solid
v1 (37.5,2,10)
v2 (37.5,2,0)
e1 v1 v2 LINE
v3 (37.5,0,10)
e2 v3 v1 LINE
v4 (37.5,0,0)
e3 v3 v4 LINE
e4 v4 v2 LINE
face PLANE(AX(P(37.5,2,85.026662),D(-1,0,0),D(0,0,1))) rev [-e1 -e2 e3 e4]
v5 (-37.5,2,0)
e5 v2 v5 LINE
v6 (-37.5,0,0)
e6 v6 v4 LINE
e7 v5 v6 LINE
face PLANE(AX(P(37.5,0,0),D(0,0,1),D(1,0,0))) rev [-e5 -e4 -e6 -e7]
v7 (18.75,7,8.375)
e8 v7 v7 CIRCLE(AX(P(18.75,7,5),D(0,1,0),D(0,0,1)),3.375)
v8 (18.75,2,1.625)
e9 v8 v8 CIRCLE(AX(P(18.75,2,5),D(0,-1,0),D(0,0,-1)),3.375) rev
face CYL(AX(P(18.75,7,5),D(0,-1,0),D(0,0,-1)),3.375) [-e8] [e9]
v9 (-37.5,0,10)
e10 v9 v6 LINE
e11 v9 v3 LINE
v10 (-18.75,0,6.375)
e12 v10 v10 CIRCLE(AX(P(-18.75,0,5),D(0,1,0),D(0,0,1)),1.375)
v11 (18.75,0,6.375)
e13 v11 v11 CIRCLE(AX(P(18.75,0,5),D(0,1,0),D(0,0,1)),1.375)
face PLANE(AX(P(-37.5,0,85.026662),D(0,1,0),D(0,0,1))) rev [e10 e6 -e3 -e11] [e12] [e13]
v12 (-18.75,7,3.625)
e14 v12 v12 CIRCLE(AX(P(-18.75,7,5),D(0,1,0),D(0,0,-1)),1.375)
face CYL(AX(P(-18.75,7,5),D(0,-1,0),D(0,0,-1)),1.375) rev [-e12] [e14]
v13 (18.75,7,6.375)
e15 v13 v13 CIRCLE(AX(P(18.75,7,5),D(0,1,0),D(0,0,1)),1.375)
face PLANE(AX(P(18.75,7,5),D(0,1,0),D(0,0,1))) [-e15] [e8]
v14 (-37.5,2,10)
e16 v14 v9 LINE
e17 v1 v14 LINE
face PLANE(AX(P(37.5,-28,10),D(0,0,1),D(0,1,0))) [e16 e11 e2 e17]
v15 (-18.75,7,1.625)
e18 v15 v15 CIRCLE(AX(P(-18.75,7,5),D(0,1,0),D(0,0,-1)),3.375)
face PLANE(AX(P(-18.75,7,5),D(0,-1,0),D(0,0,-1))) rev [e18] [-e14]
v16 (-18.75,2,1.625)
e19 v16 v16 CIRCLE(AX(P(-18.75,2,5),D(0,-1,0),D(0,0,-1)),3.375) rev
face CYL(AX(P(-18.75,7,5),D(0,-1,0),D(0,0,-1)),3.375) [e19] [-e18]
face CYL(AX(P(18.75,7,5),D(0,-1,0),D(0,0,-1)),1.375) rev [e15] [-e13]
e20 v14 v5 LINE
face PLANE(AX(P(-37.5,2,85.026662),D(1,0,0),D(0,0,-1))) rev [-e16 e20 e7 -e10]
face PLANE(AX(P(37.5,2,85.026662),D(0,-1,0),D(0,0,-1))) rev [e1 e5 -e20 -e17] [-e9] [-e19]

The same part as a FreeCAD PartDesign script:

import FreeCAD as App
import Part
import Sketcher

V = App.Vector

doc = App.newDocument("Part")
params = doc.addObject("Spreadsheet::Sheet", "Params")
for row, (alias, value) in enumerate([
    ("sketch1_width", "75 mm"),
    ("sketch1_height", "2 mm"),
    ("pad1_length", "10 mm"),
    ("sketch2_diameter", "6.75 mm"),
    ("sketch2_diameter2", "2.75 mm"),
    ("pad2_length", "5 mm"),
    ("sketch3_diameter", "2.75 mm"),
], start=1):
    params.set(f"A{row}", alias)
    params.set(f"B{row}", "=" + value)
    params.setAlias(f"B{row}", alias)

body = doc.addObject("PartDesign::Body", "Body")

# Sketch on XY plane
sketch1 = body.newObject("Sketcher::SketchObject", "Sketch")
sketch1.AttachmentSupport = (doc.getObject("XY_Plane"), [""])
sketch1.MapMode = "FlatFace"
sketch1.addGeometry([
    Part.LineSegment(V(-37.5, 2, 0), V(-37.5, 0, 0)),
    Part.LineSegment(V(-37.5, 0, 0), V(37.5, 0, 0)),
    Part.LineSegment(V(37.5, 0, 0), V(37.5, 2, 0)),
    Part.LineSegment(V(37.5, 2, 0), V(-37.5, 2, 0)),
], False)
sketch1.addConstraint([
    Sketcher.Constraint("Coincident", 0, 2, 1, 1),
    Sketcher.Constraint("Coincident", 1, 2, 2, 1),
    Sketcher.Constraint("Coincident", 2, 2, 3, 1),
    Sketcher.Constraint("Coincident", 3, 2, 0, 1),
    Sketcher.Constraint("Vertical", 0),
    Sketcher.Constraint("Horizontal", 1),
    Sketcher.Constraint("Vertical", 2),
    Sketcher.Constraint("Horizontal", 3),
    Sketcher.Constraint("Symmetric", 0, 2, 1, 2, -1, 1),
    Sketcher.Constraint("DistanceX", 1, 1, 1, 2, 75.0),
    Sketcher.Constraint("DistanceY", 0, 2, 0, 1, 2.0),
])
sketch1.setExpression("Constraints[9]", "Params.sketch1_width")
sketch1.setExpression("Constraints[10]", "Params.sketch1_height")
pad1 = body.newObject("PartDesign::Pad", "Pad")
pad1.Profile = sketch1
pad1.setExpression("Length", "Params.pad1_length")

# Sketch on XZ plane
sketch2 = body.newObject("Sketcher::SketchObject", "Sketch001")
sketch2.AttachmentSupport = (doc.getObject("XZ_Plane"), [""])
sketch2.MapMode = "FlatFace"
sketch2.AttachmentOffset = App.Placement(V(0, 0, -2), App.Rotation())
sketch2.addGeometry([
    Part.Circle(V(18.8, 5, 0), V(0, 0, 1), 3.4),
    Part.Circle(V(18.8, 5, 0), V(0, 0, 1), 1.4),
    Part.Circle(V(-18.8, 5, 0), V(0, 0, 1), 3.4),
    Part.Circle(V(-18.8, 5, 0), V(0, 0, 1), 1.4),
], False)
sketch2.addConstraint([
    Sketcher.Constraint("Coincident", 1, 3, 0, 3),
    Sketcher.Constraint("Coincident", 3, 3, 2, 3),
    Sketcher.Constraint("Equal", 0, 2),
    Sketcher.Constraint("Equal", 1, 3),
    Sketcher.Constraint("Symmetric", 0, 3, 2, 3, -2),
    Sketcher.Constraint("Diameter", 0, 6.75),
    Sketcher.Constraint("Diameter", 1, 2.75),
    Sketcher.Constraint("DistanceY", -1, 1, 0, 3, 5.0),
    Sketcher.Constraint("DistanceX", 2, 3, 0, 3, 37.5),
])
sketch2.setExpression("Constraints[5]", "Params.sketch2_diameter")
sketch2.setExpression("Constraints[6]", "Params.sketch2_diameter2")
pad2 = body.newObject("PartDesign::Pad", "Pad001")
pad2.Profile = sketch2
pad2.setExpression("Length", "Params.pad2_length")
pad2.Reversed = True

# Sketch on XZ plane
sketch3 = body.newObject("Sketcher::SketchObject", "Sketch002")
sketch3.AttachmentSupport = (doc.getObject("XZ_Plane"), [""])
sketch3.MapMode = "FlatFace"
sketch3.AttachmentOffset = App.Placement(V(0, 0, -2), App.Rotation())
sketch3.addGeometry([
    Part.Circle(V(18.8, 5, 0), V(0, 0, 1), 1.4),
    Part.Circle(V(-18.8, 5, 0), V(0, 0, 1), 1.4),
], False)
sketch3.addConstraint([
    Sketcher.Constraint("Equal", 0, 1),
    Sketcher.Constraint("Symmetric", 0, 3, 1, 3, -2),
    Sketcher.Constraint("Diameter", 0, 2.75),
    Sketcher.Constraint("DistanceY", -1, 1, 0, 3, 5.0),
    Sketcher.Constraint("DistanceX", 1, 3, 0, 3, 37.5),
])
sketch3.setExpression("Constraints[2]", "Params.sketch3_diameter")
pocket1 = body.newObject("PartDesign::Pocket", "Pocket")
pocket1.Profile = sketch3
pocket1.Type = "ThroughAll"
pocket1.Reversed = True

doc.recompute()
